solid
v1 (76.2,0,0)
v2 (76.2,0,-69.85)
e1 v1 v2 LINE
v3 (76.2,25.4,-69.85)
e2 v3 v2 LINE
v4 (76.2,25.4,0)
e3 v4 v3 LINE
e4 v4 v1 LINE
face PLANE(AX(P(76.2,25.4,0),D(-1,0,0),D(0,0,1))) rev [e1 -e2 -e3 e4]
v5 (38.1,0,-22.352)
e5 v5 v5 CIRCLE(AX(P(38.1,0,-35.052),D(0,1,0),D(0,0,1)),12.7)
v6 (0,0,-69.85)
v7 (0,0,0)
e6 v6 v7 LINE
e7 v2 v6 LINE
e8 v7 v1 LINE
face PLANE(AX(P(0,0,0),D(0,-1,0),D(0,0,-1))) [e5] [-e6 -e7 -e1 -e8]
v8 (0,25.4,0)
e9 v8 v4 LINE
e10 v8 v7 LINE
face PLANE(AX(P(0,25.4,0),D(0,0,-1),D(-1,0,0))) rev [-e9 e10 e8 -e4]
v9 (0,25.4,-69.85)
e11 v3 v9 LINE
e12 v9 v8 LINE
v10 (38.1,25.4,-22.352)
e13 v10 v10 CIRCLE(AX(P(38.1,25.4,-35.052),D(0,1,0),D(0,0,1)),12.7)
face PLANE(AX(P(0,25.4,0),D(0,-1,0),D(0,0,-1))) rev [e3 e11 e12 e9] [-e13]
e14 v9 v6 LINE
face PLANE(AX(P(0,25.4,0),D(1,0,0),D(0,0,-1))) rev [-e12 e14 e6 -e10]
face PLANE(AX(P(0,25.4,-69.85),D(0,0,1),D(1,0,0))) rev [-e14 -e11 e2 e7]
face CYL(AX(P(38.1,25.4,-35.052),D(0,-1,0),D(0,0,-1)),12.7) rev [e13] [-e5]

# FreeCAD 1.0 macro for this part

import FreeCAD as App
import Part
import Sketcher
Q = App.Units.Quantity

doc = App.newDocument("Part")
params = doc.addObject("Spreadsheet::Sheet", "Params")
for row, (alias, value) in enumerate([
    ("sketch1_diameter", "1 in"),
    ("sketch1_width", "3 in"),
    ("sketch1_height", "2.75 in"),
    ("pad1_length", "1 in"),
], start=1):
    params.set(f"A{row}", alias)
    params.set(f"B{row}", "=" + value)
    params.setAlias(f"B{row}", alias)

body = doc.addObject("PartDesign::Body", "Body")

sketch1 = doc.addObject("Sketcher::SketchObject", "Sketch")
body.addObject(sketch1)
sketch1.AttachmentSupport = (doc.XZ_Plane, [""])
sketch1.MapMode = "FlatFace"
sketch1.addGeometry([
    Part.LineSegment(App.Vector(0, -70, 0), App.Vector(0, 0, 0)),
    Part.LineSegment(App.Vector(0, 0, 0), App.Vector(76, 0, 0)),
    Part.LineSegment(App.Vector(76, 0, 0), App.Vector(76, -70, 0)),
    Part.LineSegment(App.Vector(76, -70, 0), App.Vector(0, -70, 0)),
    Part.Circle(App.Vector(38, -35, 0), App.Vector(0, 0, 1), 13),
], False)
sketch1.addConstraint([
    Sketcher.Constraint("Coincident", 0, 2, 1, 1),
    Sketcher.Constraint("Coincident", 1, 2, 2, 1),
    Sketcher.Constraint("Coincident", 2, 2, 3, 1),
    Sketcher.Constraint("Coincident", 3, 2, 0, 1),
    Sketcher.Constraint("Vertical", 0),
    Sketcher.Constraint("Horizontal", 1),
    Sketcher.Constraint("Vertical", 2),
    Sketcher.Constraint("Horizontal", 3),
    Sketcher.Constraint("Coincident", 0, 2, -1, 1),
    Sketcher.Constraint("Diameter", 4, Q("1 in")),
    Sketcher.Constraint("DistanceX", 1, 1, 1, 2, Q("3 in")),
    Sketcher.Constraint("DistanceY", 0, 1, 0, 2, Q("2.75 in")),
    Sketcher.Constraint("DistanceX", -1, 1, 4, 3, Q("1.5 in")),
    Sketcher.Constraint("DistanceY", 4, 3, -1, 1, Q("1.38 in")),
])
sketch1.setExpression("Constraints[9]", "Params.sketch1_diameter")
sketch1.setExpression("Constraints[10]", "Params.sketch1_width")
sketch1.setExpression("Constraints[11]", "Params.sketch1_height")
pad1 = doc.addObject("PartDesign::Pad", "Pad")
body.addObject(pad1)
pad1.Profile = sketch1
pad1.setExpression("Length", "Params.pad1_length")
pad1.Reversed = True

doc.recompute()
